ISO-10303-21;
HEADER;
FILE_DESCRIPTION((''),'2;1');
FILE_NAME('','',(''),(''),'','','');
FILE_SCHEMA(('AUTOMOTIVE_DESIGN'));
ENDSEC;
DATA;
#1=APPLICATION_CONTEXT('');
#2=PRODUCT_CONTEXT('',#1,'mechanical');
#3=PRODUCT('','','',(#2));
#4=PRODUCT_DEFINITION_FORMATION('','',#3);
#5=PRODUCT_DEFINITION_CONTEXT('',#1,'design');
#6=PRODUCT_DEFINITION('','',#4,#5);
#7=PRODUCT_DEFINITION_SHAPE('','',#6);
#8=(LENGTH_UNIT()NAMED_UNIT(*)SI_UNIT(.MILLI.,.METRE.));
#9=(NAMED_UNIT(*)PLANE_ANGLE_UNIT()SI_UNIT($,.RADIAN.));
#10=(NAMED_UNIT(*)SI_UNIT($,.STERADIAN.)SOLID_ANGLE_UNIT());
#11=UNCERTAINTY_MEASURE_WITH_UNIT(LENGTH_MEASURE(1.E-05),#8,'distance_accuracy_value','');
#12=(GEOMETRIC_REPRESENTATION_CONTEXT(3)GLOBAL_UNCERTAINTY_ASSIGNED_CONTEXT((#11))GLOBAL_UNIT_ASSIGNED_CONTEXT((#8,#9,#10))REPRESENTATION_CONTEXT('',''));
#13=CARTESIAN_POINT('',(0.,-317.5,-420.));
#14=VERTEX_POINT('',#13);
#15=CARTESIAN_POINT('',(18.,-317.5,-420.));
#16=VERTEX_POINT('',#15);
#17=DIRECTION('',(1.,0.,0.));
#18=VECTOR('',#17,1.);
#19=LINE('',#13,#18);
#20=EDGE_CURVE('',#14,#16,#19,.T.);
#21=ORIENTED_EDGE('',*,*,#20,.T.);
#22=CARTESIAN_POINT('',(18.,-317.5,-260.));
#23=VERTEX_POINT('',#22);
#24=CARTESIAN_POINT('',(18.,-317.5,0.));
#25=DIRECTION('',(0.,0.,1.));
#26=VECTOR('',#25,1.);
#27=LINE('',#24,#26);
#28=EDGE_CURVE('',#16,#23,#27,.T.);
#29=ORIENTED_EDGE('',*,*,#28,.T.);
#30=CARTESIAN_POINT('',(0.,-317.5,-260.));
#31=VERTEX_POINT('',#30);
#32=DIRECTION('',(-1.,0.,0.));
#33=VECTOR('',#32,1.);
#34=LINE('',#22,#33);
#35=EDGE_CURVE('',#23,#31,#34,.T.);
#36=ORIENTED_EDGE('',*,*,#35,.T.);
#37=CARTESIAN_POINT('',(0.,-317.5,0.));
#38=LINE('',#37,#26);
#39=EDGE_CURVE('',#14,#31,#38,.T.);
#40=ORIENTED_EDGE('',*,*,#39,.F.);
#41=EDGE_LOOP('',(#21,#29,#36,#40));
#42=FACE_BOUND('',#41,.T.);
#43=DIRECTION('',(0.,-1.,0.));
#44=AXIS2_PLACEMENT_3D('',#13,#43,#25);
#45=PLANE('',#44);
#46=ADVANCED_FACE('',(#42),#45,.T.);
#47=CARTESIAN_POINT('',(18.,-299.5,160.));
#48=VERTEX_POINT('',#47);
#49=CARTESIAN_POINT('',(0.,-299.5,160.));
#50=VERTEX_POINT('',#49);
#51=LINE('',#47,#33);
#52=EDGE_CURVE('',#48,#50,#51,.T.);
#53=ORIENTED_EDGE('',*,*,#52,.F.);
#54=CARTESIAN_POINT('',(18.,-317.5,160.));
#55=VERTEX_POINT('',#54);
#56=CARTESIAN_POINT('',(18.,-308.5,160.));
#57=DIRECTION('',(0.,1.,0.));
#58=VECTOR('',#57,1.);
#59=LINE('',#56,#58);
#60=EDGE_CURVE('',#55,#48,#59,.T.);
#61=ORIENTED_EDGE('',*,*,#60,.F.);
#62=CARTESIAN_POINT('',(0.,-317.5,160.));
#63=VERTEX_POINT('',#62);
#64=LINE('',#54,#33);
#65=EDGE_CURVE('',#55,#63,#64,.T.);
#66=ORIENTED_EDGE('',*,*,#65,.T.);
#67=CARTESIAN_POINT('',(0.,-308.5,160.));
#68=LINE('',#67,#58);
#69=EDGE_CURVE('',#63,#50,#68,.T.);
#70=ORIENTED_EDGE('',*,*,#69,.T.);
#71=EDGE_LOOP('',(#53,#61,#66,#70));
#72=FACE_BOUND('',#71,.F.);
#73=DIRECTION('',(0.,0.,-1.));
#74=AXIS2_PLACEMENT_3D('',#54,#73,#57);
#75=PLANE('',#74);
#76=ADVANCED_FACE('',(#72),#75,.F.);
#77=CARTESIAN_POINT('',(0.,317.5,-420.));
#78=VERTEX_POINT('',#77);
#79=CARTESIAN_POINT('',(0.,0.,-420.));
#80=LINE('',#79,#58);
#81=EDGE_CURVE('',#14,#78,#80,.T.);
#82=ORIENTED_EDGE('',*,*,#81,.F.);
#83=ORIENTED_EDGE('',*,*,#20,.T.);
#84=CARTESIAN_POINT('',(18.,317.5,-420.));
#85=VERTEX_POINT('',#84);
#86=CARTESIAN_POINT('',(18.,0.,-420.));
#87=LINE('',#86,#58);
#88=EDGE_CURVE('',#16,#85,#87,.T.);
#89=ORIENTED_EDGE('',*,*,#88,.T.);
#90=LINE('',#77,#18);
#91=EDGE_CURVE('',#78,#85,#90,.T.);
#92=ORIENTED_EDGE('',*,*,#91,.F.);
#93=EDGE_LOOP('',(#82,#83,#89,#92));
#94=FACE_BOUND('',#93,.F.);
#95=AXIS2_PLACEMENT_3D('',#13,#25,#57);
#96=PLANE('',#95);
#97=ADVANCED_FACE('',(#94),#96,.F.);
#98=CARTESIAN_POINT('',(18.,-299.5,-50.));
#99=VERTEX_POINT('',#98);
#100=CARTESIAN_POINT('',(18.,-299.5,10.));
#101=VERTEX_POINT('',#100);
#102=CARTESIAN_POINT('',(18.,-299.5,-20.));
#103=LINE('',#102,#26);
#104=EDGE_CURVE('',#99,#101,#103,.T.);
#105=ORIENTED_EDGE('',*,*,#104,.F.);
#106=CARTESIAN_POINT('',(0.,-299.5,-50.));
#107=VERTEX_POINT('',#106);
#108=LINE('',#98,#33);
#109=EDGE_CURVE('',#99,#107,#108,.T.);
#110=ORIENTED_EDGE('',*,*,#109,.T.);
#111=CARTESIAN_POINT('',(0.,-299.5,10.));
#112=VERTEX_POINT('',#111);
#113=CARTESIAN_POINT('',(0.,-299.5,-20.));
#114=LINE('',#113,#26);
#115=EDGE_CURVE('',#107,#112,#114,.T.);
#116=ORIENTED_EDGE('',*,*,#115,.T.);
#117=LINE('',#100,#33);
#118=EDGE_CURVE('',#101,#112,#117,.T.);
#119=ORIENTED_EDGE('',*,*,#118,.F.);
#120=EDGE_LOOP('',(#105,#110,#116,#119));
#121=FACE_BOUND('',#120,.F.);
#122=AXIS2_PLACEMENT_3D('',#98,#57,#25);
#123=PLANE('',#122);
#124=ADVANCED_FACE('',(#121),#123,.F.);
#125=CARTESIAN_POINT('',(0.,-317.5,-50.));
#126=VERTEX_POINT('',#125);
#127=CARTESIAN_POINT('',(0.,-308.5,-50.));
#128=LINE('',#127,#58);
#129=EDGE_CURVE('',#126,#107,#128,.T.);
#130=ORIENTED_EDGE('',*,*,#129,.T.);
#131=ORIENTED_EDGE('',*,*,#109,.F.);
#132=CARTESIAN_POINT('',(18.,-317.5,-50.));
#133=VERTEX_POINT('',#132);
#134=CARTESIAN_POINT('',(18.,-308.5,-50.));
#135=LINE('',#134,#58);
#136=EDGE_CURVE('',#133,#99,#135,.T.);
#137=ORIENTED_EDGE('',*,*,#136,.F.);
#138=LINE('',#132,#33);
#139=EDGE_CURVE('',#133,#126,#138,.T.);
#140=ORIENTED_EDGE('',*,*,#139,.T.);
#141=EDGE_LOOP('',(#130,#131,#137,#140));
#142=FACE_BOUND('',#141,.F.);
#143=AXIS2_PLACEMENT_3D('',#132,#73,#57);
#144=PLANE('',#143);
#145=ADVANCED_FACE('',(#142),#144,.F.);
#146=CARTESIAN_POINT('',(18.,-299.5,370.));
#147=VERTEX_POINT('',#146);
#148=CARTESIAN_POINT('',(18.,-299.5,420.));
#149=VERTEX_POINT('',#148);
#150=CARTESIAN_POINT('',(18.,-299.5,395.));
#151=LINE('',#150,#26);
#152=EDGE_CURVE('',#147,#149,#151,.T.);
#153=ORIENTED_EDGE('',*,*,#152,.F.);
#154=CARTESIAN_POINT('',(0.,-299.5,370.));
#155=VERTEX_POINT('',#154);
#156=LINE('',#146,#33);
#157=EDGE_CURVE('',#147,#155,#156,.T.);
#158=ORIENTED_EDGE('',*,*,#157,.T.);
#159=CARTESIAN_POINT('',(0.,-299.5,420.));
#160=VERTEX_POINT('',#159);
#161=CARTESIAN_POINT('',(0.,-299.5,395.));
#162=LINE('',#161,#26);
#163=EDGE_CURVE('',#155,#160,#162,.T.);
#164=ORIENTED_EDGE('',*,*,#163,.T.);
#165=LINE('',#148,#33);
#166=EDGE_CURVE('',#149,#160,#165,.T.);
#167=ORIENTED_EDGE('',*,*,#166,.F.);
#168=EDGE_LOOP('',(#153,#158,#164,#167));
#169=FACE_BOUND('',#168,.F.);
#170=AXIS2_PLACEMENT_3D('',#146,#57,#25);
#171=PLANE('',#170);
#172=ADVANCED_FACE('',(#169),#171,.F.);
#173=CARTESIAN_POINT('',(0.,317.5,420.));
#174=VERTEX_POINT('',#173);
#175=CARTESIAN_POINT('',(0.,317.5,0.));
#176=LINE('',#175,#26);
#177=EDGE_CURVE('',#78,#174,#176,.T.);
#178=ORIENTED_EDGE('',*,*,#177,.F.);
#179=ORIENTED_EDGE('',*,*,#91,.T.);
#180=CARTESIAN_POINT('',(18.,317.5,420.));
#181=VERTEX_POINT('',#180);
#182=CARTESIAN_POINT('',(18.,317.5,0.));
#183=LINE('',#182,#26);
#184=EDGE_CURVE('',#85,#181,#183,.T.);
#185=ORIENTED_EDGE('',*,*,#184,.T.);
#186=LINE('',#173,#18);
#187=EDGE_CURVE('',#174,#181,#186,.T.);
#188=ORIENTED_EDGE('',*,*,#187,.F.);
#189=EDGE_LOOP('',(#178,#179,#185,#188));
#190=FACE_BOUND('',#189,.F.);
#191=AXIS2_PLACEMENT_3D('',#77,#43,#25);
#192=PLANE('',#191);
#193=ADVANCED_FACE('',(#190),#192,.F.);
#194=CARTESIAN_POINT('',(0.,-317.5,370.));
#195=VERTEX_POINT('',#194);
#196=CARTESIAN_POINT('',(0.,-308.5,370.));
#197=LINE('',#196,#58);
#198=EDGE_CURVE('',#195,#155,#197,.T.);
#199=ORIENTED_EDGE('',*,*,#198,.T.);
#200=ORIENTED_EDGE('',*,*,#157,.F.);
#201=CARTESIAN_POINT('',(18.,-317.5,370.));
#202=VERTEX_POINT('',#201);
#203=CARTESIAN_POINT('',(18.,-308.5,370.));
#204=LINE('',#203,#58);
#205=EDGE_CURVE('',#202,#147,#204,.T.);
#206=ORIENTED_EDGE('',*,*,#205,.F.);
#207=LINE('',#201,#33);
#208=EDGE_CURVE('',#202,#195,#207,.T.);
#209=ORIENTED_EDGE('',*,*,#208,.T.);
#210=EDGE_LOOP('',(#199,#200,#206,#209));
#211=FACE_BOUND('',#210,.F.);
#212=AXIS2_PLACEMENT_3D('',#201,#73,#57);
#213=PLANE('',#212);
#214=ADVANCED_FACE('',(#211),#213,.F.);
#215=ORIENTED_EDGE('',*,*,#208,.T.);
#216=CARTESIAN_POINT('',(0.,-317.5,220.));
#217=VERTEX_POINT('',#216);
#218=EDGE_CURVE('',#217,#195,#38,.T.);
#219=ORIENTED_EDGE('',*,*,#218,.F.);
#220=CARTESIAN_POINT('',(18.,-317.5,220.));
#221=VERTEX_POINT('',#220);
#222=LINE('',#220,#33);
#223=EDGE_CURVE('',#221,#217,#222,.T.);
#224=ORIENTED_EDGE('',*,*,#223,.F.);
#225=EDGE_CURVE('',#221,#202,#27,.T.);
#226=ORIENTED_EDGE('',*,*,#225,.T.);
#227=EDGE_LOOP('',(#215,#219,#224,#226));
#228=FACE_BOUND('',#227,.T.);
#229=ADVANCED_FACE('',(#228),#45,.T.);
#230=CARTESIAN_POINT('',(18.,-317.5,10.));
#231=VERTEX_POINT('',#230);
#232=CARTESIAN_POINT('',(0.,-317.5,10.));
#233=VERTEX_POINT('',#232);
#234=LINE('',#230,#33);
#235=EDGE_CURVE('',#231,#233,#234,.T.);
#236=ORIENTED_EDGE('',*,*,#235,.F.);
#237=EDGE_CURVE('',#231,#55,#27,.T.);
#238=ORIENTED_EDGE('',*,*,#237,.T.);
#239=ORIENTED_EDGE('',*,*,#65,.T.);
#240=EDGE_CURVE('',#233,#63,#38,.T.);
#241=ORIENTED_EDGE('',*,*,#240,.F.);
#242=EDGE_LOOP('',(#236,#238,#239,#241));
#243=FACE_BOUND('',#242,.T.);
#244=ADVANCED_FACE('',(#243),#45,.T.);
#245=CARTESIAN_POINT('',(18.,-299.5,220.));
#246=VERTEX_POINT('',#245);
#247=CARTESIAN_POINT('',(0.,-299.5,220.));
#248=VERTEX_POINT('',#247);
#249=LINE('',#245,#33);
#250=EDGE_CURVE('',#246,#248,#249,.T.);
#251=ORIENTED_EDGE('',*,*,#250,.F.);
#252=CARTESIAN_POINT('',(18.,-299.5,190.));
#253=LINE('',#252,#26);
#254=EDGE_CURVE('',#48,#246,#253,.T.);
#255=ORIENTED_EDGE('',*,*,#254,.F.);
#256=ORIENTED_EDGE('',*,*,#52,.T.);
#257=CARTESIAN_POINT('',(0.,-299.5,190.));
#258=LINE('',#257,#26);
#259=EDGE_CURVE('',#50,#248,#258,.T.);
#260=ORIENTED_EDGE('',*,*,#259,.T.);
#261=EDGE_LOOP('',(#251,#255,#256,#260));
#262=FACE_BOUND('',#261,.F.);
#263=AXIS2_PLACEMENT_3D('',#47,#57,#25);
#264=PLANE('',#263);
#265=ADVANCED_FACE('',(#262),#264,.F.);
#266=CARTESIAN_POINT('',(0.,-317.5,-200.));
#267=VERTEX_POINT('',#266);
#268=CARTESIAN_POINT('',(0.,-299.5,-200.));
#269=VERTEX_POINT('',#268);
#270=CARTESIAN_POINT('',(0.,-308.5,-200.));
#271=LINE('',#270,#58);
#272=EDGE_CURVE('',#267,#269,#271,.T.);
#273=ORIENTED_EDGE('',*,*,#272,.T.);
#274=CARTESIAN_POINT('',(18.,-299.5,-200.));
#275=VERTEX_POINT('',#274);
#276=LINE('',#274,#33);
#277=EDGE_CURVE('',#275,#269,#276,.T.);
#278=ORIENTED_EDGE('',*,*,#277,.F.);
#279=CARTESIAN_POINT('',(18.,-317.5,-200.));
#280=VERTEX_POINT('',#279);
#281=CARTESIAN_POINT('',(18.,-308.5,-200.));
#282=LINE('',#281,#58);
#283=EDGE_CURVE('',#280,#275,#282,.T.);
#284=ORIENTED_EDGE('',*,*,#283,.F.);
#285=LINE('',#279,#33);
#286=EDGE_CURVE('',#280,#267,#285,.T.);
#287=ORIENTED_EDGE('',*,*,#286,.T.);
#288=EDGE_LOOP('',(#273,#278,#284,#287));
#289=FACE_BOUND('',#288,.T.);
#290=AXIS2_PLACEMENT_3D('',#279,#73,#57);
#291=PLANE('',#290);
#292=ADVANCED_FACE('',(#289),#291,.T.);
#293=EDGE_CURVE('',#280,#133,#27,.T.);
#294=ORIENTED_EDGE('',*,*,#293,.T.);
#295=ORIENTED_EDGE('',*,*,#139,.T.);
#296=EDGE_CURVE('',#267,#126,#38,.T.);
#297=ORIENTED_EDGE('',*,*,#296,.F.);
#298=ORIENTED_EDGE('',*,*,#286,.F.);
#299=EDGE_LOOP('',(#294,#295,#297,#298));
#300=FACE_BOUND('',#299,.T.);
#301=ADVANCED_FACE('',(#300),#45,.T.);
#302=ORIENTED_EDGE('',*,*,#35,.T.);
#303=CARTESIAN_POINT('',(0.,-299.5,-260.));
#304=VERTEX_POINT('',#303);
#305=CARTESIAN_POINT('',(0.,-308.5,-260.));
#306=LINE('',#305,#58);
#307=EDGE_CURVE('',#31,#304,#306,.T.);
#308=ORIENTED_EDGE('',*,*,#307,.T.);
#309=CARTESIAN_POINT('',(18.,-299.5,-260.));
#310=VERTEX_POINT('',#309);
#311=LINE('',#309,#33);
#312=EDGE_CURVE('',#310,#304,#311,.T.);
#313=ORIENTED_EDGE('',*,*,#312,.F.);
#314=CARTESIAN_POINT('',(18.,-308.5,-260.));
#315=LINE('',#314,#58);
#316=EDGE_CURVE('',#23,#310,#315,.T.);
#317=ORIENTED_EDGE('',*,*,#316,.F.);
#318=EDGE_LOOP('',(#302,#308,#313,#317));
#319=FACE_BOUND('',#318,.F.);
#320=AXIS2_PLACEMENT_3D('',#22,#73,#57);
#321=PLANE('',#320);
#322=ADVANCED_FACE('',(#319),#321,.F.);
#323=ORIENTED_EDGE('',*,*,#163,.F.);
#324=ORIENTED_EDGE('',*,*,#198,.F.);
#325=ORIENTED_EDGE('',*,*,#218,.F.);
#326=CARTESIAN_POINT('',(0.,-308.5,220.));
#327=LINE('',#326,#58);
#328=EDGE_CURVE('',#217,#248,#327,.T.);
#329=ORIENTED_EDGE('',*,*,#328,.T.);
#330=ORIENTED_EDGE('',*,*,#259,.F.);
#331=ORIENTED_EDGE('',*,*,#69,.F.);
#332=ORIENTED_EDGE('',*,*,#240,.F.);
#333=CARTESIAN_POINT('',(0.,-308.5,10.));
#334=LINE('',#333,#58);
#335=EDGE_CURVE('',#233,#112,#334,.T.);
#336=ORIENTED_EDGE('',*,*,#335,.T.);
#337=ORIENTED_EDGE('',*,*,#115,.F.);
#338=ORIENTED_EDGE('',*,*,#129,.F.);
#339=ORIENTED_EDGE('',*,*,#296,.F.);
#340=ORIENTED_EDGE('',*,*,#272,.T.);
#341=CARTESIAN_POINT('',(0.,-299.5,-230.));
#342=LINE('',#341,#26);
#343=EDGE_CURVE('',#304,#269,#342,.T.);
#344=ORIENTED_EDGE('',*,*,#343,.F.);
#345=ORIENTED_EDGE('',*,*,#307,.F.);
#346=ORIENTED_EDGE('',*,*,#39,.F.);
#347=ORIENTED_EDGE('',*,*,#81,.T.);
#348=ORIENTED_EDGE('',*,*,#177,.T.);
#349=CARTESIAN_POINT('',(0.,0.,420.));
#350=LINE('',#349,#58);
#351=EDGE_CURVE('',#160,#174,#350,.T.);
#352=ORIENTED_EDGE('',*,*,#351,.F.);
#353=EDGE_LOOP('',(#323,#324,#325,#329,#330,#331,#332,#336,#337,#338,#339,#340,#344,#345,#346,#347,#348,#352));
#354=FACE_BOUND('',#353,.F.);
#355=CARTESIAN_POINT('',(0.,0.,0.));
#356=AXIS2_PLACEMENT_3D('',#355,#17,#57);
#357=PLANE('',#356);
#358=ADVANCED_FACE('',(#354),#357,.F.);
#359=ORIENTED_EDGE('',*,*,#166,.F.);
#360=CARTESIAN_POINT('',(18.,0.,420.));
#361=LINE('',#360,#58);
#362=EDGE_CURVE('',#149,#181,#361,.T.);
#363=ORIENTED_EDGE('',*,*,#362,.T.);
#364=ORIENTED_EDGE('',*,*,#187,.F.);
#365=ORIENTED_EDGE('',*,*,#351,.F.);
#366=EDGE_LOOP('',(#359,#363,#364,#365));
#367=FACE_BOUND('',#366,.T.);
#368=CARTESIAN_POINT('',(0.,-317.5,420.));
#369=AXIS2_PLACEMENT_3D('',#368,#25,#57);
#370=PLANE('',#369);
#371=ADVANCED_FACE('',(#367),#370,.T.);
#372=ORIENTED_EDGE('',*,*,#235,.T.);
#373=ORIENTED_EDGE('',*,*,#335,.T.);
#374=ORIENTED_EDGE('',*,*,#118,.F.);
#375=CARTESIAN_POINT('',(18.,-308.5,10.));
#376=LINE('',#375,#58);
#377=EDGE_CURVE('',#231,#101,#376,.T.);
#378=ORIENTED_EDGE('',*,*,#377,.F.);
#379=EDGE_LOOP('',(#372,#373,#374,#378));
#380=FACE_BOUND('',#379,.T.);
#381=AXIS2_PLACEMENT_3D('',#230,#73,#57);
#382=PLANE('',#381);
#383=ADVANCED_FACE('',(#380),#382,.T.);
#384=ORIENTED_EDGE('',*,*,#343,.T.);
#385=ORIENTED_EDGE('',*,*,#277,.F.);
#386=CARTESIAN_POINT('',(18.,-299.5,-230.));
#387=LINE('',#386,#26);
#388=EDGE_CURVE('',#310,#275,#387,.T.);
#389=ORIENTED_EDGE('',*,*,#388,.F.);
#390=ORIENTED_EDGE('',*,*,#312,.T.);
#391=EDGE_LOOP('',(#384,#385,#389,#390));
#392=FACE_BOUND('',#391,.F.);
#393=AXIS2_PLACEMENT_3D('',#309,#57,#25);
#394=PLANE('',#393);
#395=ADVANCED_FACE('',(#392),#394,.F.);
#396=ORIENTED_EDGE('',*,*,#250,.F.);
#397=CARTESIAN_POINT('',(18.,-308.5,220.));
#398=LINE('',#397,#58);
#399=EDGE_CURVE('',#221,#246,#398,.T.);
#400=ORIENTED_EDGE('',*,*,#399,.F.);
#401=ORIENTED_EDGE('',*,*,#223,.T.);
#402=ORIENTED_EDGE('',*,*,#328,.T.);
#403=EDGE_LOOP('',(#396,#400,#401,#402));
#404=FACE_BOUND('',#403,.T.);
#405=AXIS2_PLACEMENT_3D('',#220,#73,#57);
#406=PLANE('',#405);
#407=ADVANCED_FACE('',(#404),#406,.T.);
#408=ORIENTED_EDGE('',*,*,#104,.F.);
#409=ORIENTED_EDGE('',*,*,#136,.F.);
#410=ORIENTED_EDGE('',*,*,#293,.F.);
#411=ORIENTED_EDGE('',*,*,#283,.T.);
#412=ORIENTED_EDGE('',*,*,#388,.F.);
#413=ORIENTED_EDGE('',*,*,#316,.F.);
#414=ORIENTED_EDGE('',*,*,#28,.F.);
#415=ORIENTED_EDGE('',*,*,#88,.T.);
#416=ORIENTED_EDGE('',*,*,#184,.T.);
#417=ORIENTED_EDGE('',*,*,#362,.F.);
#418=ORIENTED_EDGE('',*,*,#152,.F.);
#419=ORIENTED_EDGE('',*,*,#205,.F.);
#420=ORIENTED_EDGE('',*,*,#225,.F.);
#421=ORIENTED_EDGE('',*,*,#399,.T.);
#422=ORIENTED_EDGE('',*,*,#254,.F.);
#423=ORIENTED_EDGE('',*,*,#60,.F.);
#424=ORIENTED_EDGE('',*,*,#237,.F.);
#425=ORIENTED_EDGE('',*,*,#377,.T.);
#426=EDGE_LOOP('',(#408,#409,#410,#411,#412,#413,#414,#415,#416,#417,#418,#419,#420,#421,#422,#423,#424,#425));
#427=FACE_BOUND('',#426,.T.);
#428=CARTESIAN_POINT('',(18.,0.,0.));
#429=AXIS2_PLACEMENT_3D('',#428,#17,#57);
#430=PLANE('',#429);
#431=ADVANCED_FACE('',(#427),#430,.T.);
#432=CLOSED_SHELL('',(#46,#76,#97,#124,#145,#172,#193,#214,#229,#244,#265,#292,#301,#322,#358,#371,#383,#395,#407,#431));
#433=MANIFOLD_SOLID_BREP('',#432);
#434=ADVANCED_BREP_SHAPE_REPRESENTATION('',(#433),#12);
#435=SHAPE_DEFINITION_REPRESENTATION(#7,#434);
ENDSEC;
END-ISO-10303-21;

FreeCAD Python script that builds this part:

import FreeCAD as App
import Part
import Sketcher

V = App.Vector
Q = App.Units.Quantity

doc = App.newDocument("Part")
body = doc.addObject("PartDesign::Body", "Body")

sketch1 = doc.addObject("Sketcher::SketchObject", "Sketch")
body.addObject(sketch1)
sketch1.AttachmentSupport = (doc.YZ_Plane, [""])
sketch1.MapMode = "FlatFace"
sketch1.addGeometry([
    Part.LineSegment(V(-317.5, 420, 0), V(-317.5, -420, 0)),
    Part.LineSegment(V(-317.5, -420, 0), V(317.5, -420, 0)),
    Part.LineSegment(V(317.5, -420, 0), V(317.5, 420, 0)),
    Part.LineSegment(V(317.5, 420, 0), V(-317.5, 420, 0)),
], False)
sketch1.addConstraint([
    Sketcher.Constraint("Coincident", 0, 2, 1, 1),
    Sketcher.Constraint("Coincident", 1, 2, 2, 1),
    Sketcher.Constraint("Coincident", 2, 2, 3, 1),
    Sketcher.Constraint("Coincident", 3, 2, 0, 1),
    Sketcher.Constraint("Vertical", 0),
    Sketcher.Constraint("Horizontal", 1),
    Sketcher.Constraint("Vertical", 2),
    Sketcher.Constraint("Horizontal", 3),
    Sketcher.Constraint("Symmetric", 0, 2, 2, 2, -1, 1),
    Sketcher.Constraint("DistanceX", 1, 1, 1, 2, Q("635 mm")),
    Sketcher.Constraint("DistanceY", 0, 2, 0, 1, Q("840 mm")),
])
pad1 = doc.addObject("PartDesign::Pad", "Pad")
body.addObject(pad1)
pad1.Profile = sketch1
pad1.Length = 18

sketch2 = doc.addObject("Sketcher::SketchObject", "Sketch001")
body.addObject(sketch2)
sketch2.AttachmentSupport = (doc.YZ_Plane, [""])
sketch2.MapMode = "FlatFace"
sketch2.AttachmentOffset = App.Placement(V(0, 0, 18), App.Rotation())
sketch2.addGeometry([
    Part.LineSegment(V(-317.5, 420, 0), V(-317.5, 370, 0)),
    Part.LineSegment(V(-317.5, 370, 0), V(-299.5, 370, 0)),
    Part.LineSegment(V(-299.5, 370, 0), V(-299.5, 420, 0)),
    Part.LineSegment(V(-299.5, 420, 0), V(-317.5, 420, 0)),
    Part.LineSegment(V(-317.5, 10, 0), V(-317.5, -50, 0)),
    Part.LineSegment(V(-317.5, -50, 0), V(-299.5, -50, 0)),
    Part.LineSegment(V(-299.5, -50, 0), V(-299.5, 10, 0)),
    Part.LineSegment(V(-299.5, 10, 0), V(-317.5, 10, 0)),
    Part.LineSegment(V(-317.5, 220, 0), V(-317.5, 160, 0)),
    Part.LineSegment(V(-317.5, 160, 0), V(-299.5, 160, 0)),
    Part.LineSegment(V(-299.5, 160, 0), V(-299.5, 220, 0)),
    Part.LineSegment(V(-299.5, 220, 0), V(-317.5, 220, 0)),
    Part.LineSegment(V(-317.5, -200, 0), V(-317.5, -260, 0)),
    Part.LineSegment(V(-317.5, -260, 0), V(-299.5, -260, 0)),
    Part.LineSegment(V(-299.5, -260, 0), V(-299.5, -200, 0)),
    Part.LineSegment(V(-299.5, -200, 0), V(-317.5, -200, 0)),
], False)
sketch2.addConstraint([
    Sketcher.Constraint("Coincident", 0, 2, 1, 1),
    Sketcher.Constraint("Coincident", 1, 2, 2, 1),
    Sketcher.Constraint("Coincident", 2, 2, 3, 1),
    Sketcher.Constraint("Coincident", 3, 2, 0, 1),
    Sketcher.Constraint("Coincident", 4, 2, 5, 1),
    Sketcher.Constraint("Coincident", 5, 2, 6, 1),
    Sketcher.Constraint("Coincident", 6, 2, 7, 1),
    Sketcher.Constraint("Coincident", 7, 2, 4, 1),
    Sketcher.Constraint("Coincident", 8, 2, 9, 1),
    Sketcher.Constraint("Coincident", 9, 2, 10, 1),
    Sketcher.Constraint("Coincident", 10, 2, 11, 1),
    Sketcher.Constraint("Coincident", 11, 2, 8, 1),
    Sketcher.Constraint("Coincident", 12, 2, 13, 1),
    Sketcher.Constraint("Coincident", 13, 2, 14, 1),
    Sketcher.Constraint("Coincident", 14, 2, 15, 1),
    Sketcher.Constraint("Coincident", 15, 2, 12, 1),
    Sketcher.Constraint("Vertical", 0),
    Sketcher.Constraint("Horizontal", 1),
    Sketcher.Constraint("Vertical", 2),
    Sketcher.Constraint("Horizontal", 3),
    Sketcher.Constraint("Vertical", 4),
    Sketcher.Constraint("Horizontal", 5),
    Sketcher.Constraint("Vertical", 6),
    Sketcher.Constraint("Horizontal", 7),
    Sketcher.Constraint("Vertical", 8),
    Sketcher.Constraint("Horizontal", 9),
    Sketcher.Constraint("Vertical", 10),
    Sketcher.Constraint("Horizontal", 11),
    Sketcher.Constraint("Vertical", 12),
    Sketcher.Constraint("Horizontal", 13),
    Sketcher.Constraint("Vertical", 14),
    Sketcher.Constraint("Horizontal", 15),
    Sketcher.Constraint("Vertical", 3, 2, 4, 2),
    Sketcher.Constraint("Vertical", 2, 2, 5, 2),
    Sketcher.Constraint("Vertical", 7, 2, 8, 2),
    Sketcher.Constraint("Vertical", 6, 2, 9, 2),
    Sketcher.Constraint("Vertical", 11, 2, 12, 2),
    Sketcher.Constraint("Vertical", 10, 2, 13, 2),
    Sketcher.Constraint("Equal", 6, 8),
    Sketcher.Constraint("Equal", 10, 12),
    Sketcher.Constraint("DistanceX", 1, 1, 1, 2, Q("18 mm")),
    Sketcher.Constraint("DistanceY", 0, 2, 0, 1, Q("50 mm")),
    Sketcher.Constraint("DistanceY", 4, 2, 4, 1, Q("60 mm")),
    Sketcher.Constraint("DistanceY", -1, 1, 0, 2, Q("370 mm")),
    Sketcher.Constraint("DistanceY", 4, 2, -1, 1, Q("50 mm")),
    Sketcher.Constraint("DistanceY", -1, 1, 8, 2, Q("160 mm")),
    Sketcher.Constraint("DistanceY", 12, 2, -1, 1, Q("260 mm")),
    Sketcher.Constraint("DistanceX", 0, 2, -1, 1, Q("317.5 mm")),
])
pocket1 = doc.addObject("PartDesign::Pocket", "Pocket")
body.addObject(pocket1)
pocket1.Profile = sketch2
pocket1.Length = 18

doc.recompute()
